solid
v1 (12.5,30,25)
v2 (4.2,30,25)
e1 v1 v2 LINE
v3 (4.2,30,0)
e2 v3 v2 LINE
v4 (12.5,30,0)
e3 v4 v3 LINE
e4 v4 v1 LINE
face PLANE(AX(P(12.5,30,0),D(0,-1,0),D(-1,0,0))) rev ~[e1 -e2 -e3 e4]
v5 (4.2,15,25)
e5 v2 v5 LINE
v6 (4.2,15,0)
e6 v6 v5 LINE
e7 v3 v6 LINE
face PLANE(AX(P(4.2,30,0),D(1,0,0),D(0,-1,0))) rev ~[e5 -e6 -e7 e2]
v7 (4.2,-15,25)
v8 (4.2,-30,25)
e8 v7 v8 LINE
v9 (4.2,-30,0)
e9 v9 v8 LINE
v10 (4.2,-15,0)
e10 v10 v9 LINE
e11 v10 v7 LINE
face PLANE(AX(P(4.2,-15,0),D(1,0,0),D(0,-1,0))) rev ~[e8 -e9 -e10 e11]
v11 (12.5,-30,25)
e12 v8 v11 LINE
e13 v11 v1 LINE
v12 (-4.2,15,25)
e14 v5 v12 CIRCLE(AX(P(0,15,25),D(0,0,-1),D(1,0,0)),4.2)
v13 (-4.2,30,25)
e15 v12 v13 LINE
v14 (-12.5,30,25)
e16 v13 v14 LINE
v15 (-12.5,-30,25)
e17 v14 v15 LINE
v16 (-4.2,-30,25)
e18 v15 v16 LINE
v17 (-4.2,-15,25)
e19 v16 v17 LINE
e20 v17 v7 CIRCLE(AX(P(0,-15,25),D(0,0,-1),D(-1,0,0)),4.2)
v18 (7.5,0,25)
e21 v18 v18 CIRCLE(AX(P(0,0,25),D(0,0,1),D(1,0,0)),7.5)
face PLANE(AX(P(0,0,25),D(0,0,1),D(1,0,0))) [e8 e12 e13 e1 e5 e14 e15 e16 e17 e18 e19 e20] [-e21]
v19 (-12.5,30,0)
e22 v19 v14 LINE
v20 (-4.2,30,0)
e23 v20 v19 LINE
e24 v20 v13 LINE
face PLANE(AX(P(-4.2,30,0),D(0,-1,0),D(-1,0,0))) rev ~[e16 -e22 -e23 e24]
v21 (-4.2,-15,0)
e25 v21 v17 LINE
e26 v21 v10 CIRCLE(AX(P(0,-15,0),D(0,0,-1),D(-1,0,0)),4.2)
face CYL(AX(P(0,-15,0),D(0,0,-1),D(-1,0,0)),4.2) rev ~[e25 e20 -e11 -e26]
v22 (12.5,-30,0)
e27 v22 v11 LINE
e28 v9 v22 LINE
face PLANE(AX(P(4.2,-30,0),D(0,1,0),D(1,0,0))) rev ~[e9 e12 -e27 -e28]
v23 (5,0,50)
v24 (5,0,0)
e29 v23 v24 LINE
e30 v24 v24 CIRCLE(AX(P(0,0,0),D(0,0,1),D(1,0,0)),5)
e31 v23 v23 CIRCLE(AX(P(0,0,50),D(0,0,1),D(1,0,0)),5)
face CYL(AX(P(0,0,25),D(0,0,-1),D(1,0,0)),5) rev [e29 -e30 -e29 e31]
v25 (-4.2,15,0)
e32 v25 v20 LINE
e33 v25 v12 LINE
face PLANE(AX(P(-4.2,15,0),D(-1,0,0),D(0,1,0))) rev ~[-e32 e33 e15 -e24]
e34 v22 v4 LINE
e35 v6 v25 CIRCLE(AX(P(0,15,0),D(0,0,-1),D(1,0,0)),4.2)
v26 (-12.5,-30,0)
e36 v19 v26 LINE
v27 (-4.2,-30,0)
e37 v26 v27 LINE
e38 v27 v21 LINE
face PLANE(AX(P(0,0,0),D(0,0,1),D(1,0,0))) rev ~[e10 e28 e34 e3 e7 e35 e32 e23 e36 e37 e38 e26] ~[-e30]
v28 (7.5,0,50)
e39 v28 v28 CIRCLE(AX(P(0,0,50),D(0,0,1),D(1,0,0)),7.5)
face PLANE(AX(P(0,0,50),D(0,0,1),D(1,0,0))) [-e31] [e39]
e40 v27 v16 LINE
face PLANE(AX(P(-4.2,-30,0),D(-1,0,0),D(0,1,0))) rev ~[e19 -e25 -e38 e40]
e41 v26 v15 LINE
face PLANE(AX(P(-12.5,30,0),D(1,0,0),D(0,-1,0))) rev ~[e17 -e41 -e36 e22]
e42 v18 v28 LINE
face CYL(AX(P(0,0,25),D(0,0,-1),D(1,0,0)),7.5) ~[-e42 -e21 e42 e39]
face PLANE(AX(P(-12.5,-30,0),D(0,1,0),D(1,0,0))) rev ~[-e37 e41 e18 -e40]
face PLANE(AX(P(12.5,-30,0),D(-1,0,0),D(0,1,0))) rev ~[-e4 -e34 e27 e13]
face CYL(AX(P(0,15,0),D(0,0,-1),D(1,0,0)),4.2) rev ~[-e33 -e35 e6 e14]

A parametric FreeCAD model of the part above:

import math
import FreeCAD as App
import Part
import Sketcher
from FreeCAD import Vector
Q = App.Units.Quantity

doc = App.newDocument("Part")
body = doc.addObject("PartDesign::Body", "Body")

# Sketch on XY plane
sketch1 = body.newObject("Sketcher::SketchObject", "Sketch")
sketch1.AttachmentSupport = (doc.getObject("XY_Plane"), [""])
sketch1.MapMode = "FlatFace"
sketch1.addGeometry(Part.LineSegment(Vector(4.2, -30, 0), Vector(12.5, -30, 0)), False)
sketch1.addGeometry(Part.LineSegment(Vector(12.5, -30, 0), Vector(12.5, 30, 0)), False)
sketch1.addGeometry(Part.LineSegment(Vector(12.5, 30, 0), Vector(4.2, 30, 0)), False)
sketch1.addGeometry(Part.LineSegment(Vector(4.2, 30, 0), Vector(4.2, 15, 0)), False)
sketch1.addGeometry(Part.ArcOfCircle(Part.Circle(Vector(0, 15, 0), Vector(0, 0, 1), 4.2), math.radians(180), math.radians(360)), False)
sketch1.addGeometry(Part.LineSegment(Vector(-4.2, 15, 0), Vector(-4.2, 30, 0)), False)
sketch1.addGeometry(Part.LineSegment(Vector(-4.2, 30, 0), Vector(-12.5, 30, 0)), False)
sketch1.addGeometry(Part.LineSegment(Vector(-12.5, 30, 0), Vector(-12.5, -30, 0)), False)
sketch1.addGeometry(Part.LineSegment(Vector(-12.5, -30, 0), Vector(-4.2, -30, 0)), False)
sketch1.addGeometry(Part.LineSegment(Vector(-4.2, -30, 0), Vector(-4.2, -15, 0)), False)
sketch1.addGeometry(Part.ArcOfCircle(Part.Circle(Vector(0, -15, 0), Vector(0, 0, 1), 4.2), math.radians(0), math.radians(180)), False)
sketch1.addGeometry(Part.LineSegment(Vector(4.2, -15, 0), Vector(4.2, -30, 0)), False)
sketch1.addGeometry(Part.Circle(Vector(0, 0, 0), Vector(0, 0, 1), 5), False)
sketch1.addConstraint(Sketcher.Constraint("Coincident", 0, 2, 1, 1))
sketch1.addConstraint(Sketcher.Constraint("Coincident", 1, 2, 2, 1))
sketch1.addConstraint(Sketcher.Constraint("Coincident", 2, 2, 3, 1))
sketch1.addConstraint(Sketcher.Constraint("Tangent", 3, 2, 4, 2))
sketch1.addConstraint(Sketcher.Constraint("Tangent", 4, 1, 5, 1))
sketch1.addConstraint(Sketcher.Constraint("Coincident", 5, 2, 6, 1))
sketch1.addConstraint(Sketcher.Constraint("Coincident", 6, 2, 7, 1))
sketch1.addConstraint(Sketcher.Constraint("Coincident", 7, 2, 8, 1))
sketch1.addConstraint(Sketcher.Constraint("Coincident", 8, 2, 9, 1))
sketch1.addConstraint(Sketcher.Constraint("Tangent", 9, 2, 10, 2))
sketch1.addConstraint(Sketcher.Constraint("Tangent", 10, 1, 11, 1))
sketch1.addConstraint(Sketcher.Constraint("Coincident", 11, 2, 0, 1))
sketch1.addConstraint(Sketcher.Constraint("Horizontal", 0))
sketch1.addConstraint(Sketcher.Constraint("Vertical", 1))
sketch1.addConstraint(Sketcher.Constraint("Horizontal", 2))
sketch1.addConstraint(Sketcher.Constraint("Vertical", 3))
sketch1.addConstraint(Sketcher.Constraint("Vertical", 5))
sketch1.addConstraint(Sketcher.Constraint("Horizontal", 6))
sketch1.addConstraint(Sketcher.Constraint("Vertical", 7))
sketch1.addConstraint(Sketcher.Constraint("Horizontal", 8))
sketch1.addConstraint(Sketcher.Constraint("Vertical", 9))
sketch1.addConstraint(Sketcher.Constraint("Vertical", 11))
sketch1.addConstraint(Sketcher.Constraint("Coincident", 12, 3, -1, 1))
sketch1.addConstraint(Sketcher.Constraint("Equal", 4, 10))
sketch1.addConstraint(Sketcher.Constraint("Symmetric", 4, 3, 10, 3, -1, 1))
sketch1.addConstraint(Sketcher.Constraint("Symmetric", 0, 2, 6, 2, -1, 1))
sketch1.addConstraint(Sketcher.Constraint("Symmetric", 2, 2, 5, 2, -2))
sketch1.addConstraint(Sketcher.Constraint("Horizontal", 0, 2, 7, 2))
sketch1.addConstraint(Sketcher.Constraint("Diameter", 12, Q("10 mm")))
sketch1.addConstraint(Sketcher.Constraint("Radius", 4, Q("4.2 mm")))
sketch1.addConstraint(Sketcher.Constraint("DistanceY", 1, 1, 1, 2, Q("60 mm")))
sketch1.addConstraint(Sketcher.Constraint("DistanceY", 3, 2, 3, 1, Q("15 mm")))
sketch1.addConstraint(Sketcher.Constraint("DistanceX", 0, 1, 0, 2, Q("8.3 mm")))
pad1 = body.newObject("PartDesign::Pad", "Pad")
pad1.Profile = sketch1
pad1.Length = 25

# Sketch on XY plane
sketch2 = body.newObject("Sketcher::SketchObject", "Sketch001")
sketch2.AttachmentSupport = (doc.getObject("XY_Plane"), [""])
sketch2.MapMode = "FlatFace"
sketch2.AttachmentOffset = App.Placement(Vector(0, 0, 25), App.Rotation())
sketch2.addGeometry(Part.Circle(Vector(0, 0, 0), Vector(0, 0, 1), 8), False)
sketch2.addGeometry(Part.Circle(Vector(0, 0, 0), Vector(0, 0, 1), 5), False)
sketch2.addConstraint(Sketcher.Constraint("Coincident", 0, 3, -1, 1))
sketch2.addConstraint(Sketcher.Constraint("Coincident", 1, 3, -1, 1))
sketch2.addConstraint(Sketcher.Constraint("Diameter", 0, Q("15 mm")))
sketch2.addConstraint(Sketcher.Constraint("Diameter", 1, Q("10 mm")))
pad2 = body.newObject("PartDesign::Pad", "Pad001")
pad2.Profile = sketch2
pad2.Length = 25

doc.recompute()
